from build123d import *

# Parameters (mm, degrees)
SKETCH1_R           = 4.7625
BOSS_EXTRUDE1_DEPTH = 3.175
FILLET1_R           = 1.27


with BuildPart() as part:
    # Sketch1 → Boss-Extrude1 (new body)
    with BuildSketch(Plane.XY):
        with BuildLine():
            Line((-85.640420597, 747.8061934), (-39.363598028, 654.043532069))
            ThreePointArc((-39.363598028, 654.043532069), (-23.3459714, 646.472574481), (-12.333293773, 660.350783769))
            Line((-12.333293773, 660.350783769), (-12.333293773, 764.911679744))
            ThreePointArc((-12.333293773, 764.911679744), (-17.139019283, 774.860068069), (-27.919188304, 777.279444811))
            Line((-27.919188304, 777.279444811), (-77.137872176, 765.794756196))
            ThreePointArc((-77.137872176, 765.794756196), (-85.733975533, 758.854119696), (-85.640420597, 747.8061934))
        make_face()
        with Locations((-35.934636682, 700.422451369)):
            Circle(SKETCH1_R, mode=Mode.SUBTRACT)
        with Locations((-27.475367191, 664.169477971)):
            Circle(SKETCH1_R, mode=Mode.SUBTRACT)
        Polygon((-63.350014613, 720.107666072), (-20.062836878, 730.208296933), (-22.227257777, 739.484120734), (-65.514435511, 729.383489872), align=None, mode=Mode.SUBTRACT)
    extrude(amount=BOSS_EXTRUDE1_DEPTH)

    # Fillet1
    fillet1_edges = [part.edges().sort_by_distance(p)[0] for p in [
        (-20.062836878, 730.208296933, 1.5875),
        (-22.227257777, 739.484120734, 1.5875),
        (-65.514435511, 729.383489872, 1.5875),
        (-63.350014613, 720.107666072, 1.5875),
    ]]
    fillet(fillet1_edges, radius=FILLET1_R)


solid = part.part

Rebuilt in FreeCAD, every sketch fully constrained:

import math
import FreeCAD as App
import Part
import Sketcher

V = App.Vector
Q = App.Units.Quantity


def edges_at(feature, points):
    """Names of the edges that pass closest to the given points."""
    edges = feature.Shape.Edges
    near = lambda p: min(range(len(edges)), key=lambda i: edges[i].distToShape(Part.Vertex(*p))[0])
    return sorted({f"Edge{near(p) + 1}" for p in points})


def add_polygon(sketch, points):
    """Adds a closed chain of lines whose ends are joined by coincident constraints."""
    first, n = sketch.GeometryCount, len(points)
    for a, b in zip(points, points[1:] + points[:1]):
        sketch.addGeometry(Part.LineSegment(App.Vector(*a, 0), App.Vector(*b, 0)), False)
    for i in range(n):
        sketch.addConstraint(Sketcher.Constraint("Coincident", first + i, 2, first + (i + 1) % n, 1))

doc = App.newDocument("Part")
body = doc.addObject("PartDesign::Body", "Body")

# Sketch on XY plane
sketch1 = body.newObject("Sketcher::SketchObject", "Sketch")
sketch1.AttachmentSupport = (doc.getObject("XY_Plane"), [""])
sketch1.MapMode = "FlatFace"
sketch1.addGeometry(Part.LineSegment(V(-85.640421, 747.806193, 0), V(-39.363598, 654.043532, 0)), False)  # 0
sketch1.addGeometry(Part.ArcOfCircle(Part.Circle(V(-26.584313, 660.350784, 0), V(0, 0, 1), 14.251019), math.radians(-153.731229), math.radians(0)), False)  # 1
sketch1.addGeometry(Part.LineSegment(V(-12.333294, 660.350784, 0), V(-12.333294, 764.91168, 0)), False)  # 2
sketch1.addGeometry(Part.ArcOfCircle(Part.Circle(V(-25.033294, 764.91168, 0), V(0, 0, 1), 12.7), math.radians(0), math.radians(103.134386)), False)  # 3
sketch1.addGeometry(Part.LineSegment(V(-27.919188, 777.279445, 0), V(-77.137872, 765.794756, 0)), False)  # 4
sketch1.addGeometry(Part.ArcOfCircle(Part.Circle(V(-74.251978, 753.426991, 0), V(0, 0, 1), 12.7), math.radians(103.134386), math.radians(206.268771)), False)  # 5
sketch1.addGeometry(Part.Circle(V(-27.475367, 664.169478, 0), V(0, 0, 1), 4.7625), False)  # 6
sketch1.addGeometry(Part.Circle(V(-35.934637, 700.422451, 0), V(0, 0, 1), 4.7625), False)  # 7
add_polygon(sketch1, [(-20.062837, 730.208297), (-63.350015, 720.107666), (-65.514436, 729.38349), (-22.227258, 739.484121)])  # lines 8-11
sketch1.addConstraint(Sketcher.Constraint("Coincident", 0, 2, 1, 1))
sketch1.addConstraint(Sketcher.Constraint("Coincident", 1, 2, 2, 1))
sketch1.addConstraint(Sketcher.Constraint("Coincident", 2, 2, 3, 1))
sketch1.addConstraint(Sketcher.Constraint("Coincident", 3, 2, 4, 1))
sketch1.addConstraint(Sketcher.Constraint("Coincident", 4, 2, 5, 1))
sketch1.addConstraint(Sketcher.Constraint("Coincident", 5, 2, 0, 1))
sketch1.addConstraint(Sketcher.Constraint("Vertical", 2))
sketch1.addConstraint(Sketcher.Constraint("Radius", 3, Q("0.5 in")))
sketch1.addConstraint(Sketcher.Constraint("Radius", 5, Q("0.5 in")))
sketch1.addConstraint(Sketcher.Constraint("Diameter", 6, Q("0.375 in")))
sketch1.addConstraint(Sketcher.Constraint("Diameter", 7, Q("0.375 in")))
sketch1.addConstraint(Sketcher.Constraint("Distance", 8, Q("1.75 in")))
sketch1.addConstraint(Sketcher.Constraint("Distance", 10, Q("1.75 in")))
sketch1.addConstraint(Sketcher.Constraint("Distance", 9, Q("0.375 in")))
sketch1.addConstraint(Sketcher.Constraint("Distance", 11, Q("0.375 in")))
sketch1.addConstraint(Sketcher.Constraint("Radius", 1, 14.251019))
sketch1.addConstraint(Sketcher.Constraint("DistanceY", -1, 1, 4, 2, Q("30.1493999 in")))
sketch1.addConstraint(Sketcher.Constraint("DistanceX", 0, 2, -1, 1, 39.363598))
sketch1.addConstraint(Sketcher.Constraint("DistanceY", 6, 3, 3, 3, 100.742202))
sketch1.addConstraint(Sketcher.Constraint("DistanceY", 6, 3, 2, 2, 100.742202))
sketch1.addConstraint(Sketcher.Constraint("DistanceY", 9, 2, 5, 3, 24.043501))
sketch1.addConstraint(Sketcher.Constraint("DistanceX", 9, 2, 7, 3, 29.579799))
sketch1.addConstraint(Sketcher.Constraint("DistanceX", 7, 3, 11, 2, 15.8718))
sketch1.addConstraint(Sketcher.Constraint("DistanceY", 2, 1, 2, 2, 104.560896))
sketch1.addConstraint(Sketcher.Constraint("DistanceY", -1, 1, 3, 3, 764.91168))
sketch1.addConstraint(Sketcher.Constraint("DistanceY", -1, 1, 5, 3, 753.426991))
sketch1.addConstraint(Sketcher.Constraint("DistanceY", -1, 1, 7, 3, 700.422451))
sketch1.addConstraint(Sketcher.Constraint("DistanceX", 3, 2, -1, 1, 27.919188))
sketch1.addConstraint(Sketcher.Constraint("DistanceX", 5, 2, -1, 1, 85.640421))
sketch1.addConstraint(Sketcher.Constraint("DistanceY", -1, 1, 10, 2, 739.484121))
sketch1.addConstraint(Sketcher.Constraint("DistanceX", 5, 3, 6, 3, 46.77661))
sketch1.addConstraint(Sketcher.Constraint("DistanceX", 7, 3, 6, 3, 8.459269))
sketch1.addConstraint(Sketcher.Constraint("DistanceY", 0, 2, 1, 3, 6.307252))
sketch1.addConstraint(Sketcher.Constraint("DistanceX", 0, 2, 6, 3, 11.888231))
sketch1.addConstraint(Sketcher.Constraint("DistanceY", 0, 2, 7, 3, 46.378919))
pad1 = body.newObject("PartDesign::Pad", "Pad")
pad1.Profile = sketch1
pad1.Length = Q("0.125 in")
doc.recompute()

fillet = body.newObject("PartDesign::Fillet", "Fillet")
fillet.Base = (pad1, edges_at(pad1, [
    (-20.063, 730.208, 1.587),
    (-22.227, 739.484, 1.587),
    (-65.514, 729.383, 1.587),
    (-63.35, 720.108, 1.587),
]))
fillet.Radius = Q("0.05 in")

doc.recompute()
